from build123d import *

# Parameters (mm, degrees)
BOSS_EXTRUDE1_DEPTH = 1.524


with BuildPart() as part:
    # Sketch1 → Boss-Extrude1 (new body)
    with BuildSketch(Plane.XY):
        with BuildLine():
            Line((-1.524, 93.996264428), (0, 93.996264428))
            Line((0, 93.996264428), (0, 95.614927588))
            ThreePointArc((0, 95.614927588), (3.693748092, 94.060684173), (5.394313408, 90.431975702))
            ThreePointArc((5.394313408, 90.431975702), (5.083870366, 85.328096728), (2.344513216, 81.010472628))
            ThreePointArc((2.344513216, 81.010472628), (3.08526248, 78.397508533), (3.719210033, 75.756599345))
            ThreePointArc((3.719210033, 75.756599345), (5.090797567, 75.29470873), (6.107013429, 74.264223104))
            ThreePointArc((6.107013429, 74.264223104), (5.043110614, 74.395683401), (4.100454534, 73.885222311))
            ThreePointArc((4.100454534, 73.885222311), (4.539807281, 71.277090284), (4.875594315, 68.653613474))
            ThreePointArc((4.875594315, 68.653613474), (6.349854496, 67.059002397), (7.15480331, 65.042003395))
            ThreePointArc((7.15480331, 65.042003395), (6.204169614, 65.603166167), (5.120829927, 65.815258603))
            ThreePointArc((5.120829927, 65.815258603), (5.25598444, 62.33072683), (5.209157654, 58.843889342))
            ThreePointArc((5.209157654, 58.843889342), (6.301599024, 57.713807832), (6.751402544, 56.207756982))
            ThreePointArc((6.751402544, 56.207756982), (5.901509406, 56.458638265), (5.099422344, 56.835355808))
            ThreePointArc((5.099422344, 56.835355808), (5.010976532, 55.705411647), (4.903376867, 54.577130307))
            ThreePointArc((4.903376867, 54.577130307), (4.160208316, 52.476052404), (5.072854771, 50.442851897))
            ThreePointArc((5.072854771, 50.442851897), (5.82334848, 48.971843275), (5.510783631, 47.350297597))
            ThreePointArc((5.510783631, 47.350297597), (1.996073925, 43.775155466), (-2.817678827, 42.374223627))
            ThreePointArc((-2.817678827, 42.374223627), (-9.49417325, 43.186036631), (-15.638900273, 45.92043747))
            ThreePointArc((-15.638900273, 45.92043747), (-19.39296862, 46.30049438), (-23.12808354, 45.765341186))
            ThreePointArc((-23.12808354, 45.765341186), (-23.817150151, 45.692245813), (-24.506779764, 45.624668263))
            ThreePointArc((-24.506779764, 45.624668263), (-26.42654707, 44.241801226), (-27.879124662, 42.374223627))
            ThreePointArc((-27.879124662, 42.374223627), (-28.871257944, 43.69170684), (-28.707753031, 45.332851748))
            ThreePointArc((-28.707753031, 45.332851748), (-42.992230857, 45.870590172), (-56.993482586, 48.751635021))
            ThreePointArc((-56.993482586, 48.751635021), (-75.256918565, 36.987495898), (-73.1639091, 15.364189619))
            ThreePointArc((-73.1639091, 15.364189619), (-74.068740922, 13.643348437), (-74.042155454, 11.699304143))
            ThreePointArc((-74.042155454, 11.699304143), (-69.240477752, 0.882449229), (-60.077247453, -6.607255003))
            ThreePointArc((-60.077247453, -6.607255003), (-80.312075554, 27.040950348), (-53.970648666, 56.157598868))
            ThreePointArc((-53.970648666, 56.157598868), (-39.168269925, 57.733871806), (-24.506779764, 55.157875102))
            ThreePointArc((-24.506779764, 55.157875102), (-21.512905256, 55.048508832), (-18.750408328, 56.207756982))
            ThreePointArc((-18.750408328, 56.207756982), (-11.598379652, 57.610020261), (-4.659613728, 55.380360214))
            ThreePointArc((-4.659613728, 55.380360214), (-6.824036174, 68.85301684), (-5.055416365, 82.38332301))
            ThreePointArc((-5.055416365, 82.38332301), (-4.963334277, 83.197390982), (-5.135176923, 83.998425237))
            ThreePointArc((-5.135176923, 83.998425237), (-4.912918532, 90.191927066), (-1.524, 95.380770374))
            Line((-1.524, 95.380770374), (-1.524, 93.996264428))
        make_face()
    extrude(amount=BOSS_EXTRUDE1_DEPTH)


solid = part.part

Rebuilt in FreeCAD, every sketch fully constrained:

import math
import FreeCAD as App
import Part
import Sketcher
Q = App.Units.Quantity

doc = App.newDocument("Part")
body = doc.addObject("PartDesign::Body", "Body")

# Sketch on XY plane
sketch1 = body.newObject("Sketcher::SketchObject", "Sketch")
sketch1.AttachmentSupport = (doc.getObject("XY_Plane"), [""])
sketch1.MapMode = "FlatFace"
sketch1.addGeometry([
    Part.LineSegment(App.Vector(0, 93.996264, 0), App.Vector(-1.524, 93.996264, 0)),  # 0
    Part.LineSegment(App.Vector(-1.524, 93.996264, 0), App.Vector(-1.524, 95.38077, 0)),  # 1
    Part.ArcOfCircle(Part.Circle(App.Vector(6.107013, 86.69573, 0), App.Vector(0, 0, 1), 11.561241), math.radians(131.303793), math.radians(193.491776)),  # 2
    Part.ArcOfCircle(Part.Circle(App.Vector(-7.500243, 83.072108, 0), App.Vector(0, 0, 1), 2.54), math.radians(-15.734204), math.radians(21.388624)),  # 3
    Part.ArcOfCircle(Part.Circle(App.Vector(40.50757, 69.546792, 0), App.Vector(0, 0, 1), 47.33669), math.radians(164.265796), math.radians(197.413738)),  # 4
    Part.ArcOfCircle(Part.Circle(App.Vector(-12.454209, 43.035004, 0), App.Vector(0, 0, 1), 14.600121), math.radians(57.732555), math.radians(115.546466)),  # 5
    Part.ArcOfCircle(Part.Circle(App.Vector(-22.761716, 61.895584, 0), App.Vector(0, 0, 1), 6.960027), math.radians(-104.520509), math.radians(-54.806813)),  # 6
    Part.ArcOfCircle(Part.Circle(App.Vector(-40.976964, 4.42803, 0), App.Vector(0, 0, 1), 53.336518), math.radians(72.013222), math.radians(104.10012)),  # 7
    Part.ArcOfCircle(Part.Circle(App.Vector(-47.522973, 23.850791, 0), App.Vector(0, 0, 1), 32.943928), math.radians(101.286592), math.radians(247.599399)),  # 8
    Part.ArcOfCircle(Part.Circle(App.Vector(-48.940754, 16.367815, 0), App.Vector(0, 0, 1), 25.53185), math.radians(-169.464163), math.radians(-115.860431)),  # 9
    Part.ArcOfCircle(Part.Circle(App.Vector(-70.230793, 12.72363, 0), App.Vector(0, 0, 1), 3.946609), math.radians(138.004635), math.radians(195.043109)),  # 10
    Part.ArcOfCircle(Part.Circle(App.Vector(-56.477776, 27.892258, 0), App.Vector(0, 0, 1), 20.865751), math.radians(91.416236), math.radians(216.899485)),  # 11
    Part.ArcOfCircle(Part.Circle(App.Vector(-32.604509, 131.814705, 0), App.Vector(0, 0, 1), 86.5696), math.radians(-106.363291), math.radians(-87.420075)),  # 12
    Part.ArcOfCircle(Part.Circle(App.Vector(-26.688702, 44.302979, 0), App.Vector(0, 0, 1), 2.26654), math.radians(152.974895), math.radians(238.31723)),  # 13
    Part.ArcOfCircle(Part.Circle(App.Vector(-20.656056, 38.254901, 0), App.Vector(0, 0, 1), 8.315139), math.radians(117.587194), math.radians(150.303851)),  # 14
    Part.ArcOfCircle(Part.Circle(App.Vector(-32.604508, 131.814695, 0), App.Vector(0, 0, 1), 86.569589), math.radians(-84.632701), math.radians(-83.715468)),  # 15
    Part.ArcOfCircle(Part.Circle(App.Vector(-19.070941, 30.750656, 0), App.Vector(0, 0, 1), 15.553172), math.radians(77.251905), math.radians(105.120876)),  # 16
    Part.ArcOfCircle(Part.Circle(App.Vector(-3.449045, 65.042003, 0), App.Vector(0, 0, 1), 22.676571), math.radians(-122.517207), math.radians(-88.404553)),  # 17
    Part.ArcOfCircle(Part.Circle(App.Vector(-3.093985, 52.294395, 0), App.Vector(0, 0, 1), 9.924019), math.radians(-88.404553), math.radians(-29.880662)),  # 18
    Part.ArcOfCircle(Part.Circle(App.Vector(3.308439, 48.615713, 0), App.Vector(0, 0, 1), 2.54), math.radians(-29.880662), math.radians(46.000507)),  # 19
    Part.ArcOfCircle(Part.Circle(App.Vector(7.154803, 52.598811, 0), App.Vector(0, 0, 1), 2.99711), math.radians(138.694356), math.radians(226.000507)),  # 20
    Part.ArcOfCircle(Part.Circle(App.Vector(-61.554603, 61.484233, 0), App.Vector(0, 0, 1), 66.81595), math.radians(-5.933554), math.radians(-3.989712)),  # 21
    Part.ArcOfCircle(Part.Circle(App.Vector(7.973242, 61.911902, 0), App.Vector(0, 0, 1), 5.833538), math.radians(-119.514091), math.radians(-102.090177)),  # 22
    Part.ArcOfCircle(Part.Circle(App.Vector(3.437553, 56.038224, 0), App.Vector(0, 0, 1), 3.318183), math.radians(2.928634), math.radians(57.730115)),  # 23
    Part.ArcOfCircle(Part.Circle(App.Vector(-61.554598, 61.484232, 0), App.Vector(0, 0, 1), 66.815945), math.radians(-2.264727), math.radians(3.716533)),  # 24
    Part.ArcOfCircle(Part.Circle(App.Vector(5.044587, 62.552994, 0), App.Vector(0, 0, 1), 3.263155), math.radians(49.708253), math.radians(88.661166)),  # 25
    Part.ArcOfCircle(Part.Circle(App.Vector(1.310457, 63.878747, 0), App.Vector(0, 0, 1), 5.958989), math.radians(11.257008), math.radians(53.253266)),  # 26
    Part.ArcOfCircle(Part.Circle(App.Vector(-61.554598, 61.484232, 0), App.Vector(0, 0, 1), 66.815945), math.radians(6.159722), math.radians(10.696073)),  # 27
    Part.ArcOfCircle(Part.Circle(App.Vector(5.369599, 72.667146, 0), App.Vector(0, 0, 1), 1.759101), math.radians(65.215923), math.radians(136.176223)),  # 28
    Part.ArcOfCircle(Part.Circle(App.Vector(3.435154, 72.645677, 0), App.Vector(0, 0, 1), 3.123864), math.radians(31.20644), math.radians(84.782824)),  # 29
    Part.ArcOfCircle(Part.Circle(App.Vector(-61.554599, 61.484232, 0), App.Vector(0, 0, 1), 66.815945), math.radians(12.333828), math.radians(16.992063)),  # 30
    Part.ArcOfCircle(Part.Circle(App.Vector(-4.659614, 88.482124, 0), App.Vector(0, 0, 1), 10.241258), math.radians(-46.84984), math.radians(10.975649)),  # 31
    Part.ArcOfCircle(Part.Circle(App.Vector(-0.173906, 90.035306, 0), App.Vector(0, 0, 1), 5.582331), math.radians(4.074758), math.radians(88.214777)),  # 32
    Part.LineSegment(App.Vector(0, 95.614928, 0), App.Vector(0, 93.996264, 0)),  # 33
], False)
sketch1.addConstraint([
    Sketcher.Constraint("Coincident", 0, 2, 1, 1),
    Sketcher.Constraint("Coincident", 1, 2, 2, 1),
    Sketcher.Constraint("Coincident", 2, 2, 3, 2),
    Sketcher.Constraint("Coincident", 3, 1, 4, 1),
    Sketcher.Constraint("Coincident", 4, 2, 5, 1),
    Sketcher.Constraint("Coincident", 5, 2, 6, 2),
    Sketcher.Constraint("Coincident", 6, 1, 7, 1),
    Sketcher.Constraint("Coincident", 7, 2, 8, 1),
    Sketcher.Constraint("Coincident", 8, 2, 9, 2),
    Sketcher.Constraint("Coincident", 9, 1, 10, 2),
    Sketcher.Constraint("Coincident", 10, 1, 11, 2),
    Sketcher.Constraint("Coincident", 11, 1, 12, 1),
    Sketcher.Constraint("Coincident", 12, 2, 13, 1),
    Sketcher.Constraint("Coincident", 13, 2, 14, 2),
    Sketcher.Constraint("Coincident", 14, 1, 15, 1),
    Sketcher.Constraint("Coincident", 15, 2, 16, 2),
    Sketcher.Constraint("Coincident", 16, 1, 17, 1),
    Sketcher.Constraint("Coincident", 17, 2, 18, 1),
    Sketcher.Constraint("Coincident", 18, 2, 19, 1),
    Sketcher.Constraint("Coincident", 19, 2, 20, 2),
    Sketcher.Constraint("Coincident", 20, 1, 21, 1),
    Sketcher.Constraint("Coincident", 21, 2, 22, 1),
    Sketcher.Constraint("Coincident", 22, 2, 23, 1),
    Sketcher.Constraint("Coincident", 23, 2, 24, 1),
    Sketcher.Constraint("Coincident", 24, 2, 25, 2),
    Sketcher.Constraint("Coincident", 25, 1, 26, 1),
    Sketcher.Constraint("Coincident", 26, 2, 27, 1),
    Sketcher.Constraint("Coincident", 27, 2, 28, 2),
    Sketcher.Constraint("Coincident", 28, 1, 29, 1),
    Sketcher.Constraint("Coincident", 29, 2, 30, 1),
    Sketcher.Constraint("Coincident", 30, 2, 31, 1),
    Sketcher.Constraint("Coincident", 31, 2, 32, 1),
    Sketcher.Constraint("Coincident", 32, 2, 33, 1),
    Sketcher.Constraint("Coincident", 33, 2, 0, 1),
    Sketcher.Constraint("Horizontal", 0),
    Sketcher.Constraint("Vertical", 1),
    Sketcher.Constraint("Vertical", 33),
    Sketcher.Constraint("Coincident", 24, 3, 21, 3),
    Sketcher.Constraint("Coincident", 27, 3, 21, 3),
    Sketcher.Constraint("Coincident", 30, 3, 21, 3),
    Sketcher.Constraint("PointOnObject", 32, 2, -2),
    Sketcher.Constraint("Radius", 3, Q("0.1 in")),
    Sketcher.Constraint("Radius", 19, Q("0.1 in")),
    Sketcher.Constraint("DistanceX", 0, 2, 0, 1, Q("0.06 in")),
    Sketcher.Constraint("Radius", 12, 86.5696),
    Sketcher.Constraint("Radius", 28, 1.759101),
    Sketcher.Constraint("Radius", 2, 11.561241),
    Sketcher.Constraint("Radius", 4, 47.33669),
    Sketcher.Constraint("Radius", 5, 14.600121),
    Sketcher.Constraint("Radius", 9, 25.53185),
    Sketcher.Constraint("Radius", 10, 3.946609),
    Sketcher.Constraint("Radius", 11, 20.865751),
    Sketcher.Constraint("Radius", 13, 2.26654),
    Sketcher.Constraint("Radius", 14, 8.315139),
    Sketcher.Constraint("Radius", 15, 86.569589),
    Sketcher.Constraint("Radius", 17, 22.676571),
    Sketcher.Constraint("Radius", 18, 9.924019),
    Sketcher.Constraint("Radius", 20, 2.99711),
    Sketcher.Constraint("Radius", 21, 66.81595),
    Sketcher.Constraint("Radius", 26, 5.958989),
    Sketcher.Constraint("Radius", 31, 10.241258),
    Sketcher.Constraint("Radius", 32, 5.582331),
    Sketcher.Constraint("Radius", 6, 6.960027),
    Sketcher.Constraint("Radius", 7, 53.336518),
    Sketcher.Constraint("Radius", 8, 32.943928),
    Sketcher.Constraint("Radius", 16, 15.553172),
    Sketcher.Constraint("Radius", 22, 5.833538),
    Sketcher.Constraint("Radius", 23, 3.318183),
    Sketcher.Constraint("Radius", 24, 66.815945),
    Sketcher.Constraint("Radius", 25, 3.263155),
    Sketcher.Constraint("Radius", 27, 66.815945),
    Sketcher.Constraint("Radius", 29, 3.123864),
    Sketcher.Constraint("Radius", 30, 66.815945),
    Sketcher.Constraint("DistanceY", -1, 1, 14, 3, 38.254901),
    Sketcher.Constraint("DistanceX", 24, 3, -1, 1, 61.554598),
    Sketcher.Constraint("DistanceX", -1, 1, 28, 3, 5.369599),
    Sketcher.Constraint("DistanceY", -1, 1, 7, 2, 56.157599),
    Sketcher.Constraint("DistanceX", 16, 1, -1, 1, 15.6389),
    Sketcher.Constraint("DistanceY", -1, 1, 29, 2, 75.756599),
    Sketcher.Constraint("DistanceY", 1, 1, 1, 2, 1.384506),
    Sketcher.Constraint("DistanceY", 33, 2, 33, 1, 1.618663),
    Sketcher.Constraint("DistanceY", -1, 1, 2, 3, 86.69573),
    Sketcher.Constraint("DistanceX", -1, 1, 4, 3, 40.50757),
    Sketcher.Constraint("DistanceY", -1, 1, 4, 3, 69.546792),
    Sketcher.Constraint("DistanceX", 5, 3, -1, 1, 12.454209),
    Sketcher.Constraint("DistanceY", -1, 1, 7, 3, 4.42803),
    Sketcher.Constraint("DistanceY", -1, 1, 8, 3, 23.850791),
    Sketcher.Constraint("DistanceY", -1, 1, 10, 3, 12.72363),
    Sketcher.Constraint("DistanceY", -1, 1, 11, 3, 27.892258),
    Sketcher.Constraint("DistanceX", 12, 3, -1, 1, 32.604509),
    Sketcher.Constraint("DistanceY", -1, 1, 13, 3, 44.302979),
    Sketcher.Constraint("DistanceX", 16, 3, -1, 1, 19.070941),
    Sketcher.Constraint("DistanceX", -1, 1, 19, 3, 3.308439),
    Sketcher.Constraint("DistanceY", -1, 1, 20, 3, 52.598811),
    Sketcher.Constraint("DistanceY", -1, 1, 1, 2, 95.38077),
    Sketcher.Constraint("DistanceY", -1, 1, 4, 2, 55.38036),
    Sketcher.Constraint("DistanceX", 5, 2, -1, 1, 18.750408),
    Sketcher.Constraint("DistanceX", 6, 1, -1, 1, 24.50678),
    Sketcher.Constraint("DistanceX", 7, 2, -1, 1, 53.970649),
    Sketcher.Constraint("DistanceX", 10, 1, -1, 1, 73.163909),
    Sketcher.Constraint("DistanceY", -1, 1, 10, 1, 15.36419),
    Sketcher.Constraint("DistanceY", -1, 1, 12, 2, 45.332852),
    Sketcher.Constraint("DistanceX", 14, 1, -1, 1, 24.50678),
    Sketcher.Constraint("DistanceY", -1, 1, 14, 1, 45.624668),
    Sketcher.Constraint("DistanceY", -1, 1, 15, 2, 45.765341),
    Sketcher.Constraint("DistanceX", 17, 2, -1, 1, 2.817679),
    Sketcher.Constraint("DistanceY", -1, 1, 19, 2, 50.442852),
    Sketcher.Constraint("DistanceY", -1, 1, 20, 1, 54.57713),
    Sketcher.Constraint("DistanceY", -1, 1, 23, 2, 58.843889),
    Sketcher.Constraint("DistanceX", -1, 1, 24, 2, 5.12083),
    Sketcher.Constraint("DistanceY", -1, 1, 24, 2, 65.815259),
    Sketcher.Constraint("DistanceX", 3, 3, -1, 1, 7.500243),
    Sketcher.Constraint("DistanceX", 9, 3, -1, 1, 48.940754),
    Sketcher.Constraint("DistanceY", -1, 1, 9, 3, 16.367815),
    Sketcher.Constraint("DistanceY", -1, 1, 12, 3, 131.814705),
    Sketcher.Constraint("DistanceX", 15, 3, -1, 1, 32.604508),
    Sketcher.Constraint("DistanceX", 17, 3, -1, 1, 3.449045),
    Sketcher.Constraint("DistanceX", -1, 1, 22, 3, 7.973242),
    Sketcher.Constraint("DistanceY", -1, 1, 22, 3, 61.911902),
    Sketcher.Constraint("DistanceX", -1, 1, 23, 3, 3.437553),
    Sketcher.Constraint("DistanceX", -1, 1, 25, 3, 5.044587),
    Sketcher.Constraint("DistanceX", -1, 1, 26, 3, 1.310457),
    Sketcher.Constraint("DistanceY", -1, 1, 26, 3, 63.878747),
    Sketcher.Constraint("DistanceY", -1, 1, 28, 3, 72.667146),
    Sketcher.Constraint("DistanceX", -1, 1, 29, 3, 3.435154),
    Sketcher.Constraint("DistanceX", 31, 3, -1, 1, 4.659614),
    Sketcher.Constraint("DistanceY", -1, 1, 31, 3, 88.482124),
    Sketcher.Constraint("DistanceX", 32, 3, -1, 1, 0.173906),
    Sketcher.Constraint("DistanceX", 3, 1, -1, 1, 5.055416),
    Sketcher.Constraint("DistanceX", -1, 1, 18, 2, 5.510784),
])
pad1 = body.newObject("PartDesign::Pad", "Pad")
pad1.Profile = sketch1
pad1.Length = Q("0.06 in")

doc.recompute()
